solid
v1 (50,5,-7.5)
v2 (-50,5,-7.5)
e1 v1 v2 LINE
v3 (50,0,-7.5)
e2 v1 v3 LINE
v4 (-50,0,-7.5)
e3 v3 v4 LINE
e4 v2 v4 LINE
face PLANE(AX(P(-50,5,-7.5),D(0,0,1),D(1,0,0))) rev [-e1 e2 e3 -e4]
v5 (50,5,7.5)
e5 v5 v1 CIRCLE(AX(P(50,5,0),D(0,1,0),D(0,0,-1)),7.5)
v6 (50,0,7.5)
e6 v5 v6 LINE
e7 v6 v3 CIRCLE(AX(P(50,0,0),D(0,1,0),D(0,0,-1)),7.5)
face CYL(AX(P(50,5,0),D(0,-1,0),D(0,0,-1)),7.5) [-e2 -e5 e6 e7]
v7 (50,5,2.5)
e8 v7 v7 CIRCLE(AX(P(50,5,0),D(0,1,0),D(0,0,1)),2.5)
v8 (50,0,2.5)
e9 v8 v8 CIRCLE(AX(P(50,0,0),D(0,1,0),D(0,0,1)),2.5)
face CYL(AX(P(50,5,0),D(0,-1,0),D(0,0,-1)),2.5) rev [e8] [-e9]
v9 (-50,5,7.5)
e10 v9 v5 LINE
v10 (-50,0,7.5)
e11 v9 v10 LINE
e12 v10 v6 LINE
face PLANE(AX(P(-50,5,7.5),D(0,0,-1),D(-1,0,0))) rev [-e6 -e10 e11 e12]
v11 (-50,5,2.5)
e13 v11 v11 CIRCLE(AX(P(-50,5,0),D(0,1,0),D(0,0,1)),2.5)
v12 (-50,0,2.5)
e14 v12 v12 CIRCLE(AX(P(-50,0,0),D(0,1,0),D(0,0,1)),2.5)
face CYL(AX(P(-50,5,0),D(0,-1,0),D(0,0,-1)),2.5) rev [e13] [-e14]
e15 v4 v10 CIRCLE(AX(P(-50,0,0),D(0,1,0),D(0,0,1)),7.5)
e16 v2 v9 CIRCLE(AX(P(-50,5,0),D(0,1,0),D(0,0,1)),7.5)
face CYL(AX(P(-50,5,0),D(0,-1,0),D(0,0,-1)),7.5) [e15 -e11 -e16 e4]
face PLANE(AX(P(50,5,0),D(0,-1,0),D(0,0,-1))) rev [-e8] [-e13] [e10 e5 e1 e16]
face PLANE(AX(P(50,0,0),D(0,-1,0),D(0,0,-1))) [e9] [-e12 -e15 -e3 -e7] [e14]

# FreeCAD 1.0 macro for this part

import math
import FreeCAD as App
import Part
import Sketcher
from FreeCAD import Vector
Q = App.Units.Quantity

doc = App.newDocument("Part")
body = doc.addObject("PartDesign::Body", "Body")

# Sketch on XZ plane
sketch1 = body.newObject("Sketcher::SketchObject", "Sketch")
sketch1.AttachmentSupport = (doc.getObject("XZ_Plane"), [""])
sketch1.MapMode = "FlatFace"
sketch1.addGeometry([
    Part.LineSegment(Vector(50, -7.5, 0), Vector(-50, -7.5, 0)),  # 0
    Part.ArcOfCircle(Part.Circle(Vector(-50, 0, 0), Vector(0, 0, 1), 7.5), math.radians(90), math.radians(270)),  # 1
    Part.LineSegment(Vector(-50, 7.5, 0), Vector(50, 7.5, 0)),  # 2
    Part.ArcOfCircle(Part.Circle(Vector(50, 0, 0), Vector(0, 0, 1), 7.5), math.radians(-90), math.radians(90)),  # 3
    Part.Circle(Vector(50, 0, 0), Vector(0, 0, 1), 2.5),  # 4
    Part.Circle(Vector(-50, 0, 0), Vector(0, 0, 1), 2.5),  # 5
], False)
sketch1.addConstraint([
    Sketcher.Constraint("Tangent", 0, 2, 1, 2),
    Sketcher.Constraint("Tangent", 1, 1, 2, 1),
    Sketcher.Constraint("Tangent", 2, 2, 3, 2),
    Sketcher.Constraint("Tangent", 3, 1, 0, 1),
    Sketcher.Constraint("Horizontal", 0),
    Sketcher.Constraint("Horizontal", 2),
    Sketcher.Constraint("Coincident", 4, 3, 3, 3),
    Sketcher.Constraint("Coincident", 5, 3, 1, 3),
    Sketcher.Constraint("Equal", 4, 5),
    Sketcher.Constraint("Symmetric", 1, 3, 3, 3, -1, 1),
    Sketcher.Constraint("Diameter", 4, Q("5 mm")),
    Sketcher.Constraint("Radius", 1, Q("7.5 mm")),
    Sketcher.Constraint("DistanceX", 0, 2, 0, 1, Q("100 mm")),
])
pad1 = body.newObject("PartDesign::Pad", "Pad")
pad1.Profile = sketch1
pad1.Length = 5
pad1.Reversed = True

doc.recompute()
